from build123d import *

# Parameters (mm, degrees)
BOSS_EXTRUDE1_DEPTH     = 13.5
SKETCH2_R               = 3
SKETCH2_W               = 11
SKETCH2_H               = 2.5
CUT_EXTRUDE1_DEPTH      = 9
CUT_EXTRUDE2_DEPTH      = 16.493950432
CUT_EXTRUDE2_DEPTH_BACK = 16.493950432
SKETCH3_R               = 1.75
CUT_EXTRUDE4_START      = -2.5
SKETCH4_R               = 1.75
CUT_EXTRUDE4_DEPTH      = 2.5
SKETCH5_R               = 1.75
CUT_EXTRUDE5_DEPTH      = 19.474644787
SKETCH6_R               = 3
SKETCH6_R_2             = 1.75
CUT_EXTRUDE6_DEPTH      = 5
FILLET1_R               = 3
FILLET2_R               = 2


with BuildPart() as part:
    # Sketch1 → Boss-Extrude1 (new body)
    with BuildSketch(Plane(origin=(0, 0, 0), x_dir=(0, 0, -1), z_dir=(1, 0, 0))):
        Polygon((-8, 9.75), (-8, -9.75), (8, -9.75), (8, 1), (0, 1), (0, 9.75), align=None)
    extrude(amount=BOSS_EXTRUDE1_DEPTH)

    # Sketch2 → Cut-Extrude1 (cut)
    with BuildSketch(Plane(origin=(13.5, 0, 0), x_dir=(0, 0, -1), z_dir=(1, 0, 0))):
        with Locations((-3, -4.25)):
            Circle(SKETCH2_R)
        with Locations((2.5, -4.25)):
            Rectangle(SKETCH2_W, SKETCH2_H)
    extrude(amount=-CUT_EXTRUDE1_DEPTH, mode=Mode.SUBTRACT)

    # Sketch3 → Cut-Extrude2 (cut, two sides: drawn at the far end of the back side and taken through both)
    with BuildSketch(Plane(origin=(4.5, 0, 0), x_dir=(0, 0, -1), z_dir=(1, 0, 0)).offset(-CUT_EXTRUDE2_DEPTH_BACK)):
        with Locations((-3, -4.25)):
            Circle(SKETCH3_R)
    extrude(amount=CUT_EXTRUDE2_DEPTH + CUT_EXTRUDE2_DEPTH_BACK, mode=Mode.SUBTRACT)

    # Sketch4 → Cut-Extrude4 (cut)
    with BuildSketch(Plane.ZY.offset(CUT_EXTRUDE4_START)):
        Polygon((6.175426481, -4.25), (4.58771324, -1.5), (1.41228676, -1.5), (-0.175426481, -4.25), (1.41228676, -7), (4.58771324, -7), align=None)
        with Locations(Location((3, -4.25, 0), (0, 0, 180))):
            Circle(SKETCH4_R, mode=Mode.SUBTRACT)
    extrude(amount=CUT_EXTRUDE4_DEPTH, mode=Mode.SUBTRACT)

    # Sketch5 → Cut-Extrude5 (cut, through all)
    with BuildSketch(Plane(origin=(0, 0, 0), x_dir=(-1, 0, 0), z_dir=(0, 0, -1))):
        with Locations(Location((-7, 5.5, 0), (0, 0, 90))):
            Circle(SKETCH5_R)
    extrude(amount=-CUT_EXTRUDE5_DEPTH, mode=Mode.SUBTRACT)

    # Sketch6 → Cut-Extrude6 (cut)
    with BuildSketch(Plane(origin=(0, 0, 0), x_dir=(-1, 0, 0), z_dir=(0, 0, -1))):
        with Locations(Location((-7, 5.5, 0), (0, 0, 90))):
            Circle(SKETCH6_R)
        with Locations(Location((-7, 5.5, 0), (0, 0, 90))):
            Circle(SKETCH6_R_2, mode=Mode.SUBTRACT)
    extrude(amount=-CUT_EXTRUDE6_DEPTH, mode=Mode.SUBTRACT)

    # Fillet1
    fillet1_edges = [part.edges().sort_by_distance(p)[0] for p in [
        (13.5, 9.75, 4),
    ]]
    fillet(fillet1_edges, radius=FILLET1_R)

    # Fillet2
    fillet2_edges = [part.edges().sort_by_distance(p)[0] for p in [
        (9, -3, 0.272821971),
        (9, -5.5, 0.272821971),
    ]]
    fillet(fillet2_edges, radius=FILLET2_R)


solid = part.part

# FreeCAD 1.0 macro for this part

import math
import FreeCAD as App
import Part
import Sketcher

V = App.Vector
Q = App.Units.Quantity


def edges_at(feature, points):
    """Names of the edges that pass closest to the given points."""
    edges = feature.Shape.Edges
    near = lambda p: min(range(len(edges)), key=lambda i: edges[i].distToShape(Part.Vertex(*p))[0])
    return sorted({f"Edge{near(p) + 1}" for p in points})


def add_polygon(sketch, points):
    """Adds a closed chain of lines whose ends are joined by coincident constraints."""
    first, n = sketch.GeometryCount, len(points)
    for a, b in zip(points, points[1:] + points[:1]):
        sketch.addGeometry(Part.LineSegment(App.Vector(*a, 0), App.Vector(*b, 0)), False)
    for i in range(n):
        sketch.addConstraint(Sketcher.Constraint("Coincident", first + i, 2, first + (i + 1) % n, 1))

doc = App.newDocument("Part")
params = doc.addObject("Spreadsheet::Sheet", "Params")
for row, (alias, value) in enumerate([
    ("sketch1_height", "16 mm"),
    ("sketch1_width", "19.5 mm"),
    ("pad1_length", "13.5 mm"),
    ("sketch2_radius", "3 mm"),
    ("sketch2_width", "2.5 mm"),
    ("pocket1_length", "9 mm"),
    ("sketch3_diameter", "3.5 mm"),
    ("sketch4_diameter", "3.5 mm"),
    ("pocket3_length", "2.5 mm"),
    ("sketch5_diameter", "3.5 mm"),
    ("sketch6_diameter", "6 mm"),
    ("sketch6_diameter2", "3.5 mm"),
    ("pocket5_length", "5 mm"),
    ("fillet_radius", "3 mm"),
    ("fillet2_radius", "2 mm"),
], start=1):
    params.set(f"A{row}", alias)
    params.set(f"B{row}", "=" + value)
    params.setAlias(f"B{row}", alias)

body = doc.addObject("PartDesign::Body", "Body")

sketch1 = doc.addObject("Sketcher::SketchObject", "Sketch")
body.addObject(sketch1)
sketch1.AttachmentSupport = (doc.YZ_Plane, [""])
sketch1.MapMode = "FlatFace"
add_polygon(sketch1, [(10, 8), (-10, 8), (-10, -8), (1, -8), (1, 0), (10, 0)])
sketch1.addConstraint([
    Sketcher.Constraint("Horizontal", 0),
    Sketcher.Constraint("Vertical", 1),
    Sketcher.Constraint("Horizontal", 2),
    Sketcher.Constraint("Vertical", 3),
    Sketcher.Constraint("Horizontal", 4),
    Sketcher.Constraint("Vertical", 5),
    Sketcher.Constraint("Symmetric", 1, 2, 5, 2, -1, 1),
    Sketcher.Constraint("PointOnObject", 3, 2, -1),
    Sketcher.Constraint("DistanceY", 1, 2, 1, 1, Q("16 mm")),
    Sketcher.Constraint("DistanceX", 0, 2, 0, 1, Q("19.5 mm")),
    Sketcher.Constraint("DistanceX", -1, 1, 2, 2, Q("1 mm")),
])
sketch1.setExpression("Constraints[14]", "Params.sketch1_height")
sketch1.setExpression("Constraints[15]", "Params.sketch1_width")
pad1 = doc.addObject("PartDesign::Pad", "Pad")
body.addObject(pad1)
pad1.Profile = sketch1
pad1.setExpression("Length", "Params.pad1_length")

sketch2 = doc.addObject("Sketcher::SketchObject", "Sketch001")
body.addObject(sketch2)
sketch2.AttachmentSupport = (doc.YZ_Plane, [""])
sketch2.MapMode = "FlatFace"
sketch2.AttachmentOffset = App.Placement(V(0, 0, 13.5), App.Rotation())
sketch2.addGeometry([
    Part.LineSegment(V(-5.5, 0.3, 0), V(-5.5, -8, 0)),
    Part.LineSegment(V(-5.5, -8, 0), V(-3, -8, 0)),
    Part.LineSegment(V(-3, -8, 0), V(-3, 0.3, 0)),
    Part.ArcOfCircle(Part.Circle(V(-4.2, 3, 0), V(0, 0, 1), 3), math.radians(-65), math.radians(245)),
], False)
sketch2.addConstraint([
    Sketcher.Constraint("Coincident", 0, 2, 1, 1),
    Sketcher.Constraint("Coincident", 1, 2, 2, 1),
    Sketcher.Constraint("Coincident", 2, 2, 3, 1),
    Sketcher.Constraint("Coincident", 3, 2, 0, 1),
    Sketcher.Constraint("Vertical", 0),
    Sketcher.Constraint("Horizontal", 1),
    Sketcher.Constraint("Vertical", 2),
    Sketcher.Constraint("Horizontal", 2, 2, 3, 2),
    Sketcher.Constraint("Radius", 3, Q("3 mm")),
    Sketcher.Constraint("DistanceX", 1, 1, 1, 2, Q("2.5 mm")),
    Sketcher.Constraint("DistanceY", -1, 1, 3, 3, Q("3 mm")),
    Sketcher.Constraint("DistanceY", 0, 2, -1, 1, Q("8 mm")),
    Sketcher.Constraint("DistanceX", 1, 2, -1, 1, Q("3 mm")),
])
sketch2.setExpression("Constraints[8]", "Params.sketch2_radius")
sketch2.setExpression("Constraints[9]", "Params.sketch2_width")
pocket1 = doc.addObject("PartDesign::Pocket", "Pocket")
body.addObject(pocket1)
pocket1.Profile = sketch2
pocket1.setExpression("Length", "Params.pocket1_length")

sketch3 = doc.addObject("Sketcher::SketchObject", "Sketch002")
body.addObject(sketch3)
sketch3.AttachmentSupport = (doc.YZ_Plane, [""])
sketch3.MapMode = "FlatFace"
sketch3.AttachmentOffset = App.Placement(V(0, 0, 4.5), App.Rotation())
sketch3.addGeometry(Part.Circle(V(-4.2, 3, 0), V(0, 0, 1), 1.8), False)
sketch3.addConstraint([
    Sketcher.Constraint("Diameter", 0, Q("3.5 mm")),
    Sketcher.Constraint("DistanceY", -1, 1, 0, 3, Q("3 mm")),
    Sketcher.Constraint("DistanceX", 0, 3, -1, 1, Q("4.25 mm")),
])
sketch3.setExpression("Constraints[0]", "Params.sketch3_diameter")
pocket2 = doc.addObject("PartDesign::Pocket", "Pocket001")
body.addObject(pocket2)
pocket2.Profile = sketch3
pocket2.Type = "ThroughAll"
pocket2.Midplane = True

sketch4 = doc.addObject("Sketcher::SketchObject", "Sketch003")
body.addObject(sketch4)
sketch4.AttachmentSupport = (doc.YZ_Plane, [""])
sketch4.MapMode = "FlatFace"
sketch4.AttachmentOffset = App.Placement(V(0, 0, 2.5), App.Rotation())
add_polygon(sketch4, [(-4.2, 6.2), (-1.5, 4.6), (-1.5, 1.4), (-4.2, -0.2), (-7, 1.4), (-7, 4.6)])
sketch4.addGeometry(Part.Circle(V(-4.2, 3, 0), V(0, 0, 1), 1.8), False)
sketch4.addConstraint([
    Sketcher.Constraint("Vertical", 1),
    Sketcher.Constraint("Vertical", 4),
    Sketcher.Constraint("Parallel", 0, 3),
    Sketcher.Constraint("Parallel", 2, 5),
    Sketcher.Constraint("Horizontal", 1, 2, 3, 2),
    Sketcher.Constraint("Horizontal", 0, 2, 4, 2),
    Sketcher.Constraint("Vertical", 6, 3, 2, 2),
    Sketcher.Constraint("Vertical", 2, 2, 5, 2),
    Sketcher.Constraint("Diameter", 6, Q("3.5 mm")),
    Sketcher.Constraint("Angle", 0, Q("-30 deg")),
    Sketcher.Constraint("DistanceY", -1, 1, 6, 3, Q("3 mm")),
    Sketcher.Constraint("DistanceX", 3, 2, -1, 1, Q("7 mm")),
    Sketcher.Constraint("DistanceX", 0, 2, -1, 1, Q("1.5 mm")),
    Sketcher.Constraint("DistanceY", 1, 2, 1, 1, Q("3.175426 mm")),
    Sketcher.Constraint("DistanceY", -1, 1, 0, 2, Q("4.587713 mm")),
])
sketch4.setExpression("Constraints[14]", "Params.sketch4_diameter")
pocket3 = doc.addObject("PartDesign::Pocket", "Pocket002")
body.addObject(pocket3)
pocket3.Profile = sketch4
pocket3.setExpression("Length", "Params.pocket3_length")

sketch5 = doc.addObject("Sketcher::SketchObject", "Sketch004")
body.addObject(sketch5)
sketch5.AttachmentSupport = (doc.XY_Plane, [""])
sketch5.MapMode = "FlatFace"
sketch5.addGeometry(Part.Circle(V(7, 5.5, 0), V(0, 0, 1), 1.8), False)
sketch5.addConstraint([
    Sketcher.Constraint("Diameter", 0, Q("3.5 mm")),
    Sketcher.Constraint("DistanceX", -1, 1, 0, 3, Q("7 mm")),
    Sketcher.Constraint("DistanceY", -1, 1, 0, 3, Q("5.5 mm")),
])
sketch5.setExpression("Constraints[0]", "Params.sketch5_diameter")
pocket4 = doc.addObject("PartDesign::Pocket", "Pocket003")
body.addObject(pocket4)
pocket4.Profile = sketch5
pocket4.Type = "ThroughAll"
pocket4.Reversed = True

sketch6 = doc.addObject("Sketcher::SketchObject", "Sketch005")
body.addObject(sketch6)
sketch6.AttachmentSupport = (doc.XY_Plane, [""])
sketch6.MapMode = "FlatFace"
sketch6.addGeometry([
    Part.Circle(V(7, 5.5, 0), V(0, 0, 1), 3),
    Part.Circle(V(7, 5.5, 0), V(0, 0, 1), 1.8),
], False)
sketch6.addConstraint([
    Sketcher.Constraint("Coincident", 1, 3, 0, 3),
    Sketcher.Constraint("Diameter", 0, Q("6 mm")),
    Sketcher.Constraint("Diameter", 1, Q("3.5 mm")),
    Sketcher.Constraint("DistanceX", -1, 1, 0, 3, Q("7 mm")),
    Sketcher.Constraint("DistanceY", -1, 1, 0, 3, Q("5.5 mm")),
])
sketch6.setExpression("Constraints[1]", "Params.sketch6_diameter")
sketch6.setExpression("Constraints[2]", "Params.sketch6_diameter2")
pocket5 = doc.addObject("PartDesign::Pocket", "Pocket004")
body.addObject(pocket5)
pocket5.Profile = sketch6
pocket5.setExpression("Length", "Params.pocket5_length")
pocket5.Reversed = True
doc.recompute()

fillet = doc.addObject("PartDesign::Fillet", "Fillet")
body.addObject(fillet)
fillet.Base = (pocket5, edges_at(pocket5, [(13.5, 9.75, 4)]))
fillet.setExpression("Radius", "Params.fillet_radius")
doc.recompute()

fillet2 = doc.addObject("PartDesign::Fillet", "Fillet001")
body.addObject(fillet2)
fillet2.Base = (fillet, edges_at(fillet, [(9, -3, 0.273), (9, -5.5, 0.273)]))
fillet2.setExpression("Radius", "Params.fillet2_radius")

doc.recompute()
